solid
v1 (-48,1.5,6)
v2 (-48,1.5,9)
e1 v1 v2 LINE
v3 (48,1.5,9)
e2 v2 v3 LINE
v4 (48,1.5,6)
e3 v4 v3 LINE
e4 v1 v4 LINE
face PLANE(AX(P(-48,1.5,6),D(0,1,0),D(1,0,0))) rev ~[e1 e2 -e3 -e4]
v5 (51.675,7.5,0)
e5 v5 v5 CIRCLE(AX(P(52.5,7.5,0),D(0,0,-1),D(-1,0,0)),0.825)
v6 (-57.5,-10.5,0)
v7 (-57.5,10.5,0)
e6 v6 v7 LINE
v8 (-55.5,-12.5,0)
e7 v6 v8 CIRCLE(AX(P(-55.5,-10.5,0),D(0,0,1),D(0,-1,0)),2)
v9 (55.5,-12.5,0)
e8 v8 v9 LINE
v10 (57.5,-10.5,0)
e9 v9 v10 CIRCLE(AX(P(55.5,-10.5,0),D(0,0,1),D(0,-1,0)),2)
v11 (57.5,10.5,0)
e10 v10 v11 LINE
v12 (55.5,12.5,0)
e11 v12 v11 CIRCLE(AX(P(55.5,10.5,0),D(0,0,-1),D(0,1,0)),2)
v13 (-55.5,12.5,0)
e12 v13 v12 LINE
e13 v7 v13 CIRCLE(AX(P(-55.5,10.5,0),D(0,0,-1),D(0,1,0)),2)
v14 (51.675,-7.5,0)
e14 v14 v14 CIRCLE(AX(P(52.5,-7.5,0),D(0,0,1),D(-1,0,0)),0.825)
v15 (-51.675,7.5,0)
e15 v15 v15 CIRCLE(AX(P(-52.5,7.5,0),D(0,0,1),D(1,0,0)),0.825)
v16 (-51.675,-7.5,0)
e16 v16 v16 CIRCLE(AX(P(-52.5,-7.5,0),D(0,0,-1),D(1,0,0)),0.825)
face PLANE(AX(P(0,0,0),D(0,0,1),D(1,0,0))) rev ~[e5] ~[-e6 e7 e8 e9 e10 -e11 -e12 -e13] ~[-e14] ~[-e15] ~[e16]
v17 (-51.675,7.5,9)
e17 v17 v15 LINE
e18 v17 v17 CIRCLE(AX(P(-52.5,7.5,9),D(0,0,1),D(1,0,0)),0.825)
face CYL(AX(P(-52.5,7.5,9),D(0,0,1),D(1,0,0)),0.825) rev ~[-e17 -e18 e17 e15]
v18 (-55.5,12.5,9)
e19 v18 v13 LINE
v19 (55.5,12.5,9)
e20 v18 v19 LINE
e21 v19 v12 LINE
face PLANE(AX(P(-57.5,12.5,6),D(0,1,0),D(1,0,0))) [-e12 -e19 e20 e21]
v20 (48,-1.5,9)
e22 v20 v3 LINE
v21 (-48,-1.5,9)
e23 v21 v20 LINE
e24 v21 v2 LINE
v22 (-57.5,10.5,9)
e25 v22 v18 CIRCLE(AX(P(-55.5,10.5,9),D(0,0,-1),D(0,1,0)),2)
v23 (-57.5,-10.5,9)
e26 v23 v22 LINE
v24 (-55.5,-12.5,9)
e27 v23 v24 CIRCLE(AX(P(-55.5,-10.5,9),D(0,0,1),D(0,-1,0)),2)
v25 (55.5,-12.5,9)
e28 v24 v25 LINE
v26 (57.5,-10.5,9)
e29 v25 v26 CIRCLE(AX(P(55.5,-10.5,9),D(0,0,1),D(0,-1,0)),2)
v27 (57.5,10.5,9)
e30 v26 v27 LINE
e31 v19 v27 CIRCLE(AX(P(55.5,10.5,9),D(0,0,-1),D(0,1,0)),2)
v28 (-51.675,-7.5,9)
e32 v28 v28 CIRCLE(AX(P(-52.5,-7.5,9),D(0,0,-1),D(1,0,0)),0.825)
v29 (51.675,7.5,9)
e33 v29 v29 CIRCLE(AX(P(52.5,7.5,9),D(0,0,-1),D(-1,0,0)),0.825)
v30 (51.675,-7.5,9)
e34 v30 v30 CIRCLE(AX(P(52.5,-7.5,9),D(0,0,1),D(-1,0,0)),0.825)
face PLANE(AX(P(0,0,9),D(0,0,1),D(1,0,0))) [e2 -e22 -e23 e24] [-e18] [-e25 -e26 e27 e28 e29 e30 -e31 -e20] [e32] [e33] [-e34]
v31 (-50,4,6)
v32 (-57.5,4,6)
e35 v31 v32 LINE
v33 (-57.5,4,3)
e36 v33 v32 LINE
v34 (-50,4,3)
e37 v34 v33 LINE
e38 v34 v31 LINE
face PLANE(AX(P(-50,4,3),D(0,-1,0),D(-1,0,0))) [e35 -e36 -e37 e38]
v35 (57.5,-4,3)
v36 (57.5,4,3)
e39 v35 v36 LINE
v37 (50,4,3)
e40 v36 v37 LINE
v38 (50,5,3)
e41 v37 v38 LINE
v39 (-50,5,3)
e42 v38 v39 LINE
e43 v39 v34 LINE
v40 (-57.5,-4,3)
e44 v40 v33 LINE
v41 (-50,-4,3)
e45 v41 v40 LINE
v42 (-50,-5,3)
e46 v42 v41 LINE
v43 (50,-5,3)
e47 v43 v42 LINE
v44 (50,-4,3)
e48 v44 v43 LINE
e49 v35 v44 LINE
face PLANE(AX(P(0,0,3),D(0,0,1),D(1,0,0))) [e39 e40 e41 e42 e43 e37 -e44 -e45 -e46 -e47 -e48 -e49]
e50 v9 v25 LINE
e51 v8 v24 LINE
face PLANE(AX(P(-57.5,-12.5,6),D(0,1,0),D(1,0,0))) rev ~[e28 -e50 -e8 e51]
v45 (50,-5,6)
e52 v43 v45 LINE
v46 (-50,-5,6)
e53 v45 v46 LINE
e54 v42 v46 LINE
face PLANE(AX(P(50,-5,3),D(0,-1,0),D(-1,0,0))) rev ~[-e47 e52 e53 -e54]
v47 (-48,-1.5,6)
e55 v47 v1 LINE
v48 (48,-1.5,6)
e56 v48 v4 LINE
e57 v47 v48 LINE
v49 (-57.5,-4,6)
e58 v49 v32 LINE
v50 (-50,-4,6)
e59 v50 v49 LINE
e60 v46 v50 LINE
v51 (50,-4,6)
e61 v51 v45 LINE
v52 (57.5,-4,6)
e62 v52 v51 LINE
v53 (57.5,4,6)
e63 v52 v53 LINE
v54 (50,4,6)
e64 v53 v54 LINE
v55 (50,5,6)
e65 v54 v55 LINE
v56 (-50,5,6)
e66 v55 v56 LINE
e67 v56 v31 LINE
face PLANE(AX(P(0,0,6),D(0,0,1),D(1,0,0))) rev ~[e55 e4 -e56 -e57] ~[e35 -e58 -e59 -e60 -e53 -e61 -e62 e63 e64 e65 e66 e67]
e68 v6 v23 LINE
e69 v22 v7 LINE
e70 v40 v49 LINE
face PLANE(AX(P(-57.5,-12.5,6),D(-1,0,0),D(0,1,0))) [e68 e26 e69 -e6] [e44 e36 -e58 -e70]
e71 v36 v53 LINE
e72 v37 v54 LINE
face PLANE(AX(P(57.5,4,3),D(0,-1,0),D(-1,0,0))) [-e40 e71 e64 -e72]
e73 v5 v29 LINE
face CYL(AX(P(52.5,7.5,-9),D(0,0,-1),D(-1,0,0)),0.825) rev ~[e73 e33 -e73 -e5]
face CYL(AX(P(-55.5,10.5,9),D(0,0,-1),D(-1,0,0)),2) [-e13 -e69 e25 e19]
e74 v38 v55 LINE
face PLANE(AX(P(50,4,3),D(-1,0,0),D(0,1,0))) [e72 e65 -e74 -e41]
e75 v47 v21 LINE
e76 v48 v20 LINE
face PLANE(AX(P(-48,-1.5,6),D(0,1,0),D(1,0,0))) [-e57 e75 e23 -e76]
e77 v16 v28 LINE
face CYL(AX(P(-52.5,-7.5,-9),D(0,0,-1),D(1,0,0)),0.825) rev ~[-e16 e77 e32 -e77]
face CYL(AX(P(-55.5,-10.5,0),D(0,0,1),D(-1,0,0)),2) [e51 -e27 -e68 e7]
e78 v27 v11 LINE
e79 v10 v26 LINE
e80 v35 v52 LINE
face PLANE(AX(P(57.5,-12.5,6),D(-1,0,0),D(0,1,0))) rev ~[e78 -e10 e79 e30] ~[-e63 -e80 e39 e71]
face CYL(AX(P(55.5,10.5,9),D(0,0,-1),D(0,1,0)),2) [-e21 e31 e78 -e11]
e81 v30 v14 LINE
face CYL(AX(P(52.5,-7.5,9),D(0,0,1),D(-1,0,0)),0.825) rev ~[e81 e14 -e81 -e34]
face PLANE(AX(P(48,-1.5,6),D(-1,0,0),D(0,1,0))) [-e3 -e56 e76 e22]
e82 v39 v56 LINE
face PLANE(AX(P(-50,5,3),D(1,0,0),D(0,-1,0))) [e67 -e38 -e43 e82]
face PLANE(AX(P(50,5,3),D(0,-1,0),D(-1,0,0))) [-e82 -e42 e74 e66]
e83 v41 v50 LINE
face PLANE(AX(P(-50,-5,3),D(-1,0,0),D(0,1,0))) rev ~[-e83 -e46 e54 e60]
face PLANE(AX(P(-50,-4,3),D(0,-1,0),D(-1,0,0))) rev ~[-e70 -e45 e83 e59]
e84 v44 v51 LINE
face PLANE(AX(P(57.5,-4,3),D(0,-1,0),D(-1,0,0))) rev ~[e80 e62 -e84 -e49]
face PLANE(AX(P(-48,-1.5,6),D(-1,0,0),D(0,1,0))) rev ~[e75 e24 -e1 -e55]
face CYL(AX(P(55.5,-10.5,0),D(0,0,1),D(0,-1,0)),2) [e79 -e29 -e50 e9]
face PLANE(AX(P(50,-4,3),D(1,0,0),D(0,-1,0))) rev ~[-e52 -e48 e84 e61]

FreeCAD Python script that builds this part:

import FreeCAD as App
import Part
import Sketcher
Q = App.Units.Quantity


def edges_at(feature, points):
    """Names of the edges that pass closest to the given points."""
    edges = feature.Shape.Edges
    near = lambda p: min(range(len(edges)), key=lambda i: edges[i].distToShape(Part.Vertex(*p))[0])
    return sorted({f"Edge{near(p) + 1}" for p in points})

doc = App.newDocument("Part")
body = doc.addObject("PartDesign::Body", "Body")

sketch1 = body.newObject("Sketcher::SketchObject", "Sketch")
sketch1.AttachmentSupport = (doc.getObject("XY_Plane"), [""])
sketch1.MapMode = "FlatFace"
sketch1.addGeometry([
    Part.LineSegment(App.Vector(-58, 12, 0), App.Vector(-58, -12, 0)),
    Part.LineSegment(App.Vector(-58, -12, 0), App.Vector(58, -12, 0)),
    Part.LineSegment(App.Vector(58, -12, 0), App.Vector(58, 12, 0)),
    Part.LineSegment(App.Vector(58, 12, 0), App.Vector(-58, 12, 0)),
], False)
sketch1.addConstraint([
    Sketcher.Constraint("Coincident", 0, 2, 1, 1),
    Sketcher.Constraint("Coincident", 1, 2, 2, 1),
    Sketcher.Constraint("Coincident", 2, 2, 3, 1),
    Sketcher.Constraint("Coincident", 3, 2, 0, 1),
    Sketcher.Constraint("Vertical", 0),
    Sketcher.Constraint("Horizontal", 1),
    Sketcher.Constraint("Vertical", 2),
    Sketcher.Constraint("Horizontal", 3),
    Sketcher.Constraint("Symmetric", 0, 2, 2, 2, -1, 1),
    Sketcher.Constraint("DistanceX", 1, 1, 1, 2, Q("115 mm")),
    Sketcher.Constraint("DistanceY", 0, 2, 0, 1, Q("25 mm")),
])
pad1 = body.newObject("PartDesign::Pad", "Pad")
pad1.Profile = sketch1
pad1.Length = 3

sketch2 = body.newObject("Sketcher::SketchObject", "Sketch001")
sketch2.AttachmentSupport = (doc.getObject("XY_Plane"), [""])
sketch2.MapMode = "FlatFace"
sketch2.AttachmentOffset = App.Placement(App.Vector(0, 0, 3), App.Rotation())
sketch2.addGeometry([
    Part.LineSegment(App.Vector(57.5, 12.5, 0), App.Vector(-57.5, 12.5, 0)),
    Part.LineSegment(App.Vector(-57.5, 12.5, 0), App.Vector(-57.5, 4, 0)),
    Part.LineSegment(App.Vector(-57.5, 4, 0), App.Vector(-50, 4, 0)),
    Part.LineSegment(App.Vector(-50, 4, 0), App.Vector(-50, 5, 0)),
    Part.LineSegment(App.Vector(-50, 5, 0), App.Vector(50, 5, 0)),
    Part.LineSegment(App.Vector(50, 5, 0), App.Vector(50, 4, 0)),
    Part.LineSegment(App.Vector(50, 4, 0), App.Vector(57.5, 4, 0)),
    Part.LineSegment(App.Vector(57.5, 4, 0), App.Vector(57.5, 12.5, 0)),
    Part.LineSegment(App.Vector(-57.5, -12.5, 0), App.Vector(57.5, -12.5, 0)),
    Part.LineSegment(App.Vector(57.5, -12.5, 0), App.Vector(57.5, -4, 0)),
    Part.LineSegment(App.Vector(57.5, -4, 0), App.Vector(50, -4, 0)),
    Part.LineSegment(App.Vector(50, -4, 0), App.Vector(50, -5, 0)),
    Part.LineSegment(App.Vector(50, -5, 0), App.Vector(-50, -5, 0)),
    Part.LineSegment(App.Vector(-50, -5, 0), App.Vector(-50, -4, 0)),
    Part.LineSegment(App.Vector(-50, -4, 0), App.Vector(-57.5, -4, 0)),
    Part.LineSegment(App.Vector(-57.5, -4, 0), App.Vector(-57.5, -12.5, 0)),
], False)
sketch2.addConstraint([
    Sketcher.Constraint("Coincident", 0, 2, 1, 1),
    Sketcher.Constraint("Coincident", 1, 2, 2, 1),
    Sketcher.Constraint("Coincident", 2, 2, 3, 1),
    Sketcher.Constraint("Coincident", 3, 2, 4, 1),
    Sketcher.Constraint("Coincident", 4, 2, 5, 1),
    Sketcher.Constraint("Coincident", 5, 2, 6, 1),
    Sketcher.Constraint("Coincident", 6, 2, 7, 1),
    Sketcher.Constraint("Coincident", 7, 2, 0, 1),
    Sketcher.Constraint("Coincident", 8, 2, 9, 1),
    Sketcher.Constraint("Coincident", 9, 2, 10, 1),
    Sketcher.Constraint("Coincident", 10, 2, 11, 1),
    Sketcher.Constraint("Coincident", 11, 2, 12, 1),
    Sketcher.Constraint("Coincident", 12, 2, 13, 1),
    Sketcher.Constraint("Coincident", 13, 2, 14, 1),
    Sketcher.Constraint("Coincident", 14, 2, 15, 1),
    Sketcher.Constraint("Coincident", 15, 2, 8, 1),
    Sketcher.Constraint("Horizontal", 0),
    Sketcher.Constraint("Vertical", 1),
    Sketcher.Constraint("Horizontal", 2),
    Sketcher.Constraint("Vertical", 3),
    Sketcher.Constraint("Horizontal", 4),
    Sketcher.Constraint("Vertical", 5),
    Sketcher.Constraint("Horizontal", 6),
    Sketcher.Constraint("Vertical", 7),
    Sketcher.Constraint("Horizontal", 8),
    Sketcher.Constraint("Vertical", 9),
    Sketcher.Constraint("Horizontal", 10),
    Sketcher.Constraint("Vertical", 11),
    Sketcher.Constraint("Horizontal", 12),
    Sketcher.Constraint("Vertical", 13),
    Sketcher.Constraint("Horizontal", 14),
    Sketcher.Constraint("Vertical", 15),
    Sketcher.Constraint("Symmetric", 0, 2, 8, 2, -1, 1),
    Sketcher.Constraint("Symmetric", 2, 2, 10, 2, -1, 1),
    Sketcher.Constraint("Symmetric", 4, 2, 12, 2, -1, 1),
    Sketcher.Constraint("Symmetric", 6, 2, 14, 2, -1, 1),
    Sketcher.Constraint("Symmetric", 2, 2, 5, 2, -2),
    Sketcher.Constraint("Vertical", 7, 2, 8, 2),
    Sketcher.Constraint("DistanceX", 0, 2, 0, 1, Q("115 mm")),
    Sketcher.Constraint("DistanceX", 4, 1, 4, 2, Q("100 mm")),
    Sketcher.Constraint("DistanceY", 3, 1, 3, 2, Q("1 mm")),
    Sketcher.Constraint("DistanceY", 1, 2, 1, 1, Q("8.5 mm")),
    Sketcher.Constraint("DistanceY", -1, 1, 1, 2, Q("4 mm")),
])
pad2 = body.newObject("PartDesign::Pad", "Pad001")
pad2.Profile = sketch2
pad2.Length = 3

sketch3 = body.newObject("Sketcher::SketchObject", "Sketch002")
sketch3.AttachmentSupport = (doc.getObject("XY_Plane"), [""])
sketch3.MapMode = "FlatFace"
sketch3.AttachmentOffset = App.Placement(App.Vector(0, 0, 6), App.Rotation())
sketch3.addGeometry([
    Part.LineSegment(App.Vector(-57.5, 12.5, 0), App.Vector(-57.5, -12.5, 0)),
    Part.LineSegment(App.Vector(-57.5, -12.5, 0), App.Vector(57.5, -12.5, 0)),
    Part.LineSegment(App.Vector(57.5, -12.5, 0), App.Vector(57.5, 12.5, 0)),
    Part.LineSegment(App.Vector(57.5, 12.5, 0), App.Vector(-57.5, 12.5, 0)),
    Part.LineSegment(App.Vector(48, -1.5, 0), App.Vector(-48, -1.5, 0)),
    Part.LineSegment(App.Vector(-48, -1.5, 0), App.Vector(-48, 1.5, 0)),
    Part.LineSegment(App.Vector(-48, 1.5, 0), App.Vector(48, 1.5, 0)),
    Part.LineSegment(App.Vector(48, 1.5, 0), App.Vector(48, -1.5, 0)),
], False)
sketch3.addConstraint([
    Sketcher.Constraint("Coincident", 0, 2, 1, 1),
    Sketcher.Constraint("Coincident", 1, 2, 2, 1),
    Sketcher.Constraint("Coincident", 2, 2, 3, 1),
    Sketcher.Constraint("Coincident", 3, 2, 0, 1),
    Sketcher.Constraint("Coincident", 4, 2, 5, 1),
    Sketcher.Constraint("Coincident", 5, 2, 6, 1),
    Sketcher.Constraint("Coincident", 6, 2, 7, 1),
    Sketcher.Constraint("Coincident", 7, 2, 4, 1),
    Sketcher.Constraint("Vertical", 0),
    Sketcher.Constraint("Horizontal", 1),
    Sketcher.Constraint("Vertical", 2),
    Sketcher.Constraint("Horizontal", 3),
    Sketcher.Constraint("Horizontal", 4),
    Sketcher.Constraint("Vertical", 5),
    Sketcher.Constraint("Horizontal", 6),
    Sketcher.Constraint("Vertical", 7),
    Sketcher.Constraint("Symmetric", 0, 2, 2, 2, -1, 1),
    Sketcher.Constraint("Symmetric", 4, 2, 6, 2, -1, 1),
    Sketcher.Constraint("DistanceX", 1, 1, 1, 2, Q("115 mm")),
    Sketcher.Constraint("DistanceX", 4, 2, 4, 1, Q("96 mm")),
    Sketcher.Constraint("DistanceY", 0, 2, 0, 1, Q("25 mm")),
    Sketcher.Constraint("DistanceY", 5, 1, 5, 2, Q("3 mm")),
])
pad3 = body.newObject("PartDesign::Pad", "Pad002")
pad3.Profile = sketch3
pad3.Length = 3

sketch4 = body.newObject("Sketcher::SketchObject", "Sketch003")
sketch4.AttachmentSupport = (doc.getObject("XY_Plane"), [""])
sketch4.MapMode = "FlatFace"
sketch4.AttachmentOffset = App.Placement(App.Vector(0, 0, 9), App.Rotation())
sketch4.addGeometry(Part.Circle(App.Vector(-52.5, 7.5, 0), App.Vector(0, 0, 1), 0.8), False)
sketch4.addConstraint([
    Sketcher.Constraint("Diameter", 0, Q("1.65 mm")),
    Sketcher.Constraint("DistanceX", 0, 3, -1, 1, Q("52.5 mm")),
    Sketcher.Constraint("DistanceY", -1, 1, 0, 3, Q("7.5 mm")),
])
pocket1 = body.newObject("PartDesign::Pocket", "Pocket")
pocket1.Profile = sketch4
pocket1.Type = "ThroughAll"
doc.recompute()

polarpattern = body.newObject("PartDesign::PolarPattern", "PolarPattern")
polarpattern.Originals = [pocket1]
polarpattern.Axis = (doc.getObject("Y_Axis"), [""])
polarpattern.Angle = 360
polarpattern.Occurrences = 2
body.Tip = polarpattern
doc.recompute()

polarpattern2 = body.newObject("PartDesign::PolarPattern", "PolarPattern001")
polarpattern2.Originals = [pocket1]
polarpattern2.Axis = (doc.getObject("X_Axis"), [""])
polarpattern2.Angle = 360
polarpattern2.Occurrences = 2
body.Tip = polarpattern2
doc.recompute()

polarpattern3 = body.newObject("PartDesign::PolarPattern", "PolarPattern002")
polarpattern3.Originals = [pocket1]
polarpattern3.Axis = (doc.getObject("Z_Axis"), [""])
polarpattern3.Angle = 360
polarpattern3.Occurrences = 2
body.Tip = polarpattern3
doc.recompute()

fillet = body.newObject("PartDesign::Fillet", "Fillet")
fillet.Base = (polarpattern3, edges_at(polarpattern3, [
    (57.5, 12.5, 4.5),
    (57.5, 12.5, 4.5),
    (57.5, 12.5, 4.5),
    (57.5, -12.5, 4.5),
    (-57.5, 12.5, 4.5),
    (-57.5, -12.5, 4.5),
]))
fillet.Radius = 2

doc.recompute()
